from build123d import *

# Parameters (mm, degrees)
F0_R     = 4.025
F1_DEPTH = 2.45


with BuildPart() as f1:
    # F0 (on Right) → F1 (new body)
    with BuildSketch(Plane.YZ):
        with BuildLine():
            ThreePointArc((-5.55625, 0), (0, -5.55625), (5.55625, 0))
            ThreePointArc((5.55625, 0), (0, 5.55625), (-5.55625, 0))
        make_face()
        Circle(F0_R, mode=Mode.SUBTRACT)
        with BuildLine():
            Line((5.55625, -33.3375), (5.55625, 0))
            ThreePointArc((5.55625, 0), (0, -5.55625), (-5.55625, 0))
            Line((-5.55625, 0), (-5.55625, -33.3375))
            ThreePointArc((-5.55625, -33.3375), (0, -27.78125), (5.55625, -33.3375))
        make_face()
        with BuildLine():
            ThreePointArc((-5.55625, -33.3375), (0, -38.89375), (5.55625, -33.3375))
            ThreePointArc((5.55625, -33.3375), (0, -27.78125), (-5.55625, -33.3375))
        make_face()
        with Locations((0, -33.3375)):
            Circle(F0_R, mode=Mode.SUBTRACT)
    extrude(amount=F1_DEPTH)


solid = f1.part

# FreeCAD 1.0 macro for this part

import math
import FreeCAD as App
import Part
import Sketcher

V = App.Vector
Q = App.Units.Quantity

doc = App.newDocument("Part")
body = doc.addObject("PartDesign::Body", "Body")

sketch1 = doc.addObject("Sketcher::SketchObject", "Sketch")
body.addObject(sketch1)
sketch1.AttachmentSupport = (doc.YZ_Plane, [""])
sketch1.MapMode = "FlatFace"
sketch1.addGeometry([
    Part.ArcOfCircle(Part.Circle(V(0, 0, 0), V(0, 0, 1), 5.55625), math.radians(0), math.radians(180)),
    Part.LineSegment(V(-5.55625, 0, 0), V(-5.55625, -33.3375, 0)),
    Part.ArcOfCircle(Part.Circle(V(0, -33.3375, 0), V(0, 0, 1), 5.55625), math.radians(180), math.radians(360)),
    Part.LineSegment(V(5.55625, -33.3375, 0), V(5.55625, 0, 0)),
    Part.Circle(V(0, -33.3375, 0), V(0, 0, 1), 4.025),
    Part.Circle(V(0, 0, 0), V(0, 0, 1), 4.025),
], False)
sketch1.addConstraint([
    Sketcher.Constraint("Tangent", 0, 2, 1, 1),
    Sketcher.Constraint("Tangent", 1, 2, 2, 1),
    Sketcher.Constraint("Tangent", 2, 2, 3, 1),
    Sketcher.Constraint("Tangent", 3, 2, 0, 1),
    Sketcher.Constraint("Vertical", 1),
    Sketcher.Constraint("Vertical", 3),
    Sketcher.Constraint("Coincident", 0, 3, -1, 1),
    Sketcher.Constraint("Coincident", 5, 3, -1, 1),
    Sketcher.Constraint("Coincident", 4, 3, 2, 3),
    Sketcher.Constraint("Equal", 4, 5),
    Sketcher.Constraint("Radius", 0, Q("0.21875 in")),
    Sketcher.Constraint("Diameter", 4, Q("8.05 mm")),
    Sketcher.Constraint("DistanceY", 1, 2, 1, 1, Q("1.3125 in")),
])
pad1 = doc.addObject("PartDesign::Pad", "Pad")
body.addObject(pad1)
pad1.Profile = sketch1
pad1.Length = 2.45

doc.recompute()
